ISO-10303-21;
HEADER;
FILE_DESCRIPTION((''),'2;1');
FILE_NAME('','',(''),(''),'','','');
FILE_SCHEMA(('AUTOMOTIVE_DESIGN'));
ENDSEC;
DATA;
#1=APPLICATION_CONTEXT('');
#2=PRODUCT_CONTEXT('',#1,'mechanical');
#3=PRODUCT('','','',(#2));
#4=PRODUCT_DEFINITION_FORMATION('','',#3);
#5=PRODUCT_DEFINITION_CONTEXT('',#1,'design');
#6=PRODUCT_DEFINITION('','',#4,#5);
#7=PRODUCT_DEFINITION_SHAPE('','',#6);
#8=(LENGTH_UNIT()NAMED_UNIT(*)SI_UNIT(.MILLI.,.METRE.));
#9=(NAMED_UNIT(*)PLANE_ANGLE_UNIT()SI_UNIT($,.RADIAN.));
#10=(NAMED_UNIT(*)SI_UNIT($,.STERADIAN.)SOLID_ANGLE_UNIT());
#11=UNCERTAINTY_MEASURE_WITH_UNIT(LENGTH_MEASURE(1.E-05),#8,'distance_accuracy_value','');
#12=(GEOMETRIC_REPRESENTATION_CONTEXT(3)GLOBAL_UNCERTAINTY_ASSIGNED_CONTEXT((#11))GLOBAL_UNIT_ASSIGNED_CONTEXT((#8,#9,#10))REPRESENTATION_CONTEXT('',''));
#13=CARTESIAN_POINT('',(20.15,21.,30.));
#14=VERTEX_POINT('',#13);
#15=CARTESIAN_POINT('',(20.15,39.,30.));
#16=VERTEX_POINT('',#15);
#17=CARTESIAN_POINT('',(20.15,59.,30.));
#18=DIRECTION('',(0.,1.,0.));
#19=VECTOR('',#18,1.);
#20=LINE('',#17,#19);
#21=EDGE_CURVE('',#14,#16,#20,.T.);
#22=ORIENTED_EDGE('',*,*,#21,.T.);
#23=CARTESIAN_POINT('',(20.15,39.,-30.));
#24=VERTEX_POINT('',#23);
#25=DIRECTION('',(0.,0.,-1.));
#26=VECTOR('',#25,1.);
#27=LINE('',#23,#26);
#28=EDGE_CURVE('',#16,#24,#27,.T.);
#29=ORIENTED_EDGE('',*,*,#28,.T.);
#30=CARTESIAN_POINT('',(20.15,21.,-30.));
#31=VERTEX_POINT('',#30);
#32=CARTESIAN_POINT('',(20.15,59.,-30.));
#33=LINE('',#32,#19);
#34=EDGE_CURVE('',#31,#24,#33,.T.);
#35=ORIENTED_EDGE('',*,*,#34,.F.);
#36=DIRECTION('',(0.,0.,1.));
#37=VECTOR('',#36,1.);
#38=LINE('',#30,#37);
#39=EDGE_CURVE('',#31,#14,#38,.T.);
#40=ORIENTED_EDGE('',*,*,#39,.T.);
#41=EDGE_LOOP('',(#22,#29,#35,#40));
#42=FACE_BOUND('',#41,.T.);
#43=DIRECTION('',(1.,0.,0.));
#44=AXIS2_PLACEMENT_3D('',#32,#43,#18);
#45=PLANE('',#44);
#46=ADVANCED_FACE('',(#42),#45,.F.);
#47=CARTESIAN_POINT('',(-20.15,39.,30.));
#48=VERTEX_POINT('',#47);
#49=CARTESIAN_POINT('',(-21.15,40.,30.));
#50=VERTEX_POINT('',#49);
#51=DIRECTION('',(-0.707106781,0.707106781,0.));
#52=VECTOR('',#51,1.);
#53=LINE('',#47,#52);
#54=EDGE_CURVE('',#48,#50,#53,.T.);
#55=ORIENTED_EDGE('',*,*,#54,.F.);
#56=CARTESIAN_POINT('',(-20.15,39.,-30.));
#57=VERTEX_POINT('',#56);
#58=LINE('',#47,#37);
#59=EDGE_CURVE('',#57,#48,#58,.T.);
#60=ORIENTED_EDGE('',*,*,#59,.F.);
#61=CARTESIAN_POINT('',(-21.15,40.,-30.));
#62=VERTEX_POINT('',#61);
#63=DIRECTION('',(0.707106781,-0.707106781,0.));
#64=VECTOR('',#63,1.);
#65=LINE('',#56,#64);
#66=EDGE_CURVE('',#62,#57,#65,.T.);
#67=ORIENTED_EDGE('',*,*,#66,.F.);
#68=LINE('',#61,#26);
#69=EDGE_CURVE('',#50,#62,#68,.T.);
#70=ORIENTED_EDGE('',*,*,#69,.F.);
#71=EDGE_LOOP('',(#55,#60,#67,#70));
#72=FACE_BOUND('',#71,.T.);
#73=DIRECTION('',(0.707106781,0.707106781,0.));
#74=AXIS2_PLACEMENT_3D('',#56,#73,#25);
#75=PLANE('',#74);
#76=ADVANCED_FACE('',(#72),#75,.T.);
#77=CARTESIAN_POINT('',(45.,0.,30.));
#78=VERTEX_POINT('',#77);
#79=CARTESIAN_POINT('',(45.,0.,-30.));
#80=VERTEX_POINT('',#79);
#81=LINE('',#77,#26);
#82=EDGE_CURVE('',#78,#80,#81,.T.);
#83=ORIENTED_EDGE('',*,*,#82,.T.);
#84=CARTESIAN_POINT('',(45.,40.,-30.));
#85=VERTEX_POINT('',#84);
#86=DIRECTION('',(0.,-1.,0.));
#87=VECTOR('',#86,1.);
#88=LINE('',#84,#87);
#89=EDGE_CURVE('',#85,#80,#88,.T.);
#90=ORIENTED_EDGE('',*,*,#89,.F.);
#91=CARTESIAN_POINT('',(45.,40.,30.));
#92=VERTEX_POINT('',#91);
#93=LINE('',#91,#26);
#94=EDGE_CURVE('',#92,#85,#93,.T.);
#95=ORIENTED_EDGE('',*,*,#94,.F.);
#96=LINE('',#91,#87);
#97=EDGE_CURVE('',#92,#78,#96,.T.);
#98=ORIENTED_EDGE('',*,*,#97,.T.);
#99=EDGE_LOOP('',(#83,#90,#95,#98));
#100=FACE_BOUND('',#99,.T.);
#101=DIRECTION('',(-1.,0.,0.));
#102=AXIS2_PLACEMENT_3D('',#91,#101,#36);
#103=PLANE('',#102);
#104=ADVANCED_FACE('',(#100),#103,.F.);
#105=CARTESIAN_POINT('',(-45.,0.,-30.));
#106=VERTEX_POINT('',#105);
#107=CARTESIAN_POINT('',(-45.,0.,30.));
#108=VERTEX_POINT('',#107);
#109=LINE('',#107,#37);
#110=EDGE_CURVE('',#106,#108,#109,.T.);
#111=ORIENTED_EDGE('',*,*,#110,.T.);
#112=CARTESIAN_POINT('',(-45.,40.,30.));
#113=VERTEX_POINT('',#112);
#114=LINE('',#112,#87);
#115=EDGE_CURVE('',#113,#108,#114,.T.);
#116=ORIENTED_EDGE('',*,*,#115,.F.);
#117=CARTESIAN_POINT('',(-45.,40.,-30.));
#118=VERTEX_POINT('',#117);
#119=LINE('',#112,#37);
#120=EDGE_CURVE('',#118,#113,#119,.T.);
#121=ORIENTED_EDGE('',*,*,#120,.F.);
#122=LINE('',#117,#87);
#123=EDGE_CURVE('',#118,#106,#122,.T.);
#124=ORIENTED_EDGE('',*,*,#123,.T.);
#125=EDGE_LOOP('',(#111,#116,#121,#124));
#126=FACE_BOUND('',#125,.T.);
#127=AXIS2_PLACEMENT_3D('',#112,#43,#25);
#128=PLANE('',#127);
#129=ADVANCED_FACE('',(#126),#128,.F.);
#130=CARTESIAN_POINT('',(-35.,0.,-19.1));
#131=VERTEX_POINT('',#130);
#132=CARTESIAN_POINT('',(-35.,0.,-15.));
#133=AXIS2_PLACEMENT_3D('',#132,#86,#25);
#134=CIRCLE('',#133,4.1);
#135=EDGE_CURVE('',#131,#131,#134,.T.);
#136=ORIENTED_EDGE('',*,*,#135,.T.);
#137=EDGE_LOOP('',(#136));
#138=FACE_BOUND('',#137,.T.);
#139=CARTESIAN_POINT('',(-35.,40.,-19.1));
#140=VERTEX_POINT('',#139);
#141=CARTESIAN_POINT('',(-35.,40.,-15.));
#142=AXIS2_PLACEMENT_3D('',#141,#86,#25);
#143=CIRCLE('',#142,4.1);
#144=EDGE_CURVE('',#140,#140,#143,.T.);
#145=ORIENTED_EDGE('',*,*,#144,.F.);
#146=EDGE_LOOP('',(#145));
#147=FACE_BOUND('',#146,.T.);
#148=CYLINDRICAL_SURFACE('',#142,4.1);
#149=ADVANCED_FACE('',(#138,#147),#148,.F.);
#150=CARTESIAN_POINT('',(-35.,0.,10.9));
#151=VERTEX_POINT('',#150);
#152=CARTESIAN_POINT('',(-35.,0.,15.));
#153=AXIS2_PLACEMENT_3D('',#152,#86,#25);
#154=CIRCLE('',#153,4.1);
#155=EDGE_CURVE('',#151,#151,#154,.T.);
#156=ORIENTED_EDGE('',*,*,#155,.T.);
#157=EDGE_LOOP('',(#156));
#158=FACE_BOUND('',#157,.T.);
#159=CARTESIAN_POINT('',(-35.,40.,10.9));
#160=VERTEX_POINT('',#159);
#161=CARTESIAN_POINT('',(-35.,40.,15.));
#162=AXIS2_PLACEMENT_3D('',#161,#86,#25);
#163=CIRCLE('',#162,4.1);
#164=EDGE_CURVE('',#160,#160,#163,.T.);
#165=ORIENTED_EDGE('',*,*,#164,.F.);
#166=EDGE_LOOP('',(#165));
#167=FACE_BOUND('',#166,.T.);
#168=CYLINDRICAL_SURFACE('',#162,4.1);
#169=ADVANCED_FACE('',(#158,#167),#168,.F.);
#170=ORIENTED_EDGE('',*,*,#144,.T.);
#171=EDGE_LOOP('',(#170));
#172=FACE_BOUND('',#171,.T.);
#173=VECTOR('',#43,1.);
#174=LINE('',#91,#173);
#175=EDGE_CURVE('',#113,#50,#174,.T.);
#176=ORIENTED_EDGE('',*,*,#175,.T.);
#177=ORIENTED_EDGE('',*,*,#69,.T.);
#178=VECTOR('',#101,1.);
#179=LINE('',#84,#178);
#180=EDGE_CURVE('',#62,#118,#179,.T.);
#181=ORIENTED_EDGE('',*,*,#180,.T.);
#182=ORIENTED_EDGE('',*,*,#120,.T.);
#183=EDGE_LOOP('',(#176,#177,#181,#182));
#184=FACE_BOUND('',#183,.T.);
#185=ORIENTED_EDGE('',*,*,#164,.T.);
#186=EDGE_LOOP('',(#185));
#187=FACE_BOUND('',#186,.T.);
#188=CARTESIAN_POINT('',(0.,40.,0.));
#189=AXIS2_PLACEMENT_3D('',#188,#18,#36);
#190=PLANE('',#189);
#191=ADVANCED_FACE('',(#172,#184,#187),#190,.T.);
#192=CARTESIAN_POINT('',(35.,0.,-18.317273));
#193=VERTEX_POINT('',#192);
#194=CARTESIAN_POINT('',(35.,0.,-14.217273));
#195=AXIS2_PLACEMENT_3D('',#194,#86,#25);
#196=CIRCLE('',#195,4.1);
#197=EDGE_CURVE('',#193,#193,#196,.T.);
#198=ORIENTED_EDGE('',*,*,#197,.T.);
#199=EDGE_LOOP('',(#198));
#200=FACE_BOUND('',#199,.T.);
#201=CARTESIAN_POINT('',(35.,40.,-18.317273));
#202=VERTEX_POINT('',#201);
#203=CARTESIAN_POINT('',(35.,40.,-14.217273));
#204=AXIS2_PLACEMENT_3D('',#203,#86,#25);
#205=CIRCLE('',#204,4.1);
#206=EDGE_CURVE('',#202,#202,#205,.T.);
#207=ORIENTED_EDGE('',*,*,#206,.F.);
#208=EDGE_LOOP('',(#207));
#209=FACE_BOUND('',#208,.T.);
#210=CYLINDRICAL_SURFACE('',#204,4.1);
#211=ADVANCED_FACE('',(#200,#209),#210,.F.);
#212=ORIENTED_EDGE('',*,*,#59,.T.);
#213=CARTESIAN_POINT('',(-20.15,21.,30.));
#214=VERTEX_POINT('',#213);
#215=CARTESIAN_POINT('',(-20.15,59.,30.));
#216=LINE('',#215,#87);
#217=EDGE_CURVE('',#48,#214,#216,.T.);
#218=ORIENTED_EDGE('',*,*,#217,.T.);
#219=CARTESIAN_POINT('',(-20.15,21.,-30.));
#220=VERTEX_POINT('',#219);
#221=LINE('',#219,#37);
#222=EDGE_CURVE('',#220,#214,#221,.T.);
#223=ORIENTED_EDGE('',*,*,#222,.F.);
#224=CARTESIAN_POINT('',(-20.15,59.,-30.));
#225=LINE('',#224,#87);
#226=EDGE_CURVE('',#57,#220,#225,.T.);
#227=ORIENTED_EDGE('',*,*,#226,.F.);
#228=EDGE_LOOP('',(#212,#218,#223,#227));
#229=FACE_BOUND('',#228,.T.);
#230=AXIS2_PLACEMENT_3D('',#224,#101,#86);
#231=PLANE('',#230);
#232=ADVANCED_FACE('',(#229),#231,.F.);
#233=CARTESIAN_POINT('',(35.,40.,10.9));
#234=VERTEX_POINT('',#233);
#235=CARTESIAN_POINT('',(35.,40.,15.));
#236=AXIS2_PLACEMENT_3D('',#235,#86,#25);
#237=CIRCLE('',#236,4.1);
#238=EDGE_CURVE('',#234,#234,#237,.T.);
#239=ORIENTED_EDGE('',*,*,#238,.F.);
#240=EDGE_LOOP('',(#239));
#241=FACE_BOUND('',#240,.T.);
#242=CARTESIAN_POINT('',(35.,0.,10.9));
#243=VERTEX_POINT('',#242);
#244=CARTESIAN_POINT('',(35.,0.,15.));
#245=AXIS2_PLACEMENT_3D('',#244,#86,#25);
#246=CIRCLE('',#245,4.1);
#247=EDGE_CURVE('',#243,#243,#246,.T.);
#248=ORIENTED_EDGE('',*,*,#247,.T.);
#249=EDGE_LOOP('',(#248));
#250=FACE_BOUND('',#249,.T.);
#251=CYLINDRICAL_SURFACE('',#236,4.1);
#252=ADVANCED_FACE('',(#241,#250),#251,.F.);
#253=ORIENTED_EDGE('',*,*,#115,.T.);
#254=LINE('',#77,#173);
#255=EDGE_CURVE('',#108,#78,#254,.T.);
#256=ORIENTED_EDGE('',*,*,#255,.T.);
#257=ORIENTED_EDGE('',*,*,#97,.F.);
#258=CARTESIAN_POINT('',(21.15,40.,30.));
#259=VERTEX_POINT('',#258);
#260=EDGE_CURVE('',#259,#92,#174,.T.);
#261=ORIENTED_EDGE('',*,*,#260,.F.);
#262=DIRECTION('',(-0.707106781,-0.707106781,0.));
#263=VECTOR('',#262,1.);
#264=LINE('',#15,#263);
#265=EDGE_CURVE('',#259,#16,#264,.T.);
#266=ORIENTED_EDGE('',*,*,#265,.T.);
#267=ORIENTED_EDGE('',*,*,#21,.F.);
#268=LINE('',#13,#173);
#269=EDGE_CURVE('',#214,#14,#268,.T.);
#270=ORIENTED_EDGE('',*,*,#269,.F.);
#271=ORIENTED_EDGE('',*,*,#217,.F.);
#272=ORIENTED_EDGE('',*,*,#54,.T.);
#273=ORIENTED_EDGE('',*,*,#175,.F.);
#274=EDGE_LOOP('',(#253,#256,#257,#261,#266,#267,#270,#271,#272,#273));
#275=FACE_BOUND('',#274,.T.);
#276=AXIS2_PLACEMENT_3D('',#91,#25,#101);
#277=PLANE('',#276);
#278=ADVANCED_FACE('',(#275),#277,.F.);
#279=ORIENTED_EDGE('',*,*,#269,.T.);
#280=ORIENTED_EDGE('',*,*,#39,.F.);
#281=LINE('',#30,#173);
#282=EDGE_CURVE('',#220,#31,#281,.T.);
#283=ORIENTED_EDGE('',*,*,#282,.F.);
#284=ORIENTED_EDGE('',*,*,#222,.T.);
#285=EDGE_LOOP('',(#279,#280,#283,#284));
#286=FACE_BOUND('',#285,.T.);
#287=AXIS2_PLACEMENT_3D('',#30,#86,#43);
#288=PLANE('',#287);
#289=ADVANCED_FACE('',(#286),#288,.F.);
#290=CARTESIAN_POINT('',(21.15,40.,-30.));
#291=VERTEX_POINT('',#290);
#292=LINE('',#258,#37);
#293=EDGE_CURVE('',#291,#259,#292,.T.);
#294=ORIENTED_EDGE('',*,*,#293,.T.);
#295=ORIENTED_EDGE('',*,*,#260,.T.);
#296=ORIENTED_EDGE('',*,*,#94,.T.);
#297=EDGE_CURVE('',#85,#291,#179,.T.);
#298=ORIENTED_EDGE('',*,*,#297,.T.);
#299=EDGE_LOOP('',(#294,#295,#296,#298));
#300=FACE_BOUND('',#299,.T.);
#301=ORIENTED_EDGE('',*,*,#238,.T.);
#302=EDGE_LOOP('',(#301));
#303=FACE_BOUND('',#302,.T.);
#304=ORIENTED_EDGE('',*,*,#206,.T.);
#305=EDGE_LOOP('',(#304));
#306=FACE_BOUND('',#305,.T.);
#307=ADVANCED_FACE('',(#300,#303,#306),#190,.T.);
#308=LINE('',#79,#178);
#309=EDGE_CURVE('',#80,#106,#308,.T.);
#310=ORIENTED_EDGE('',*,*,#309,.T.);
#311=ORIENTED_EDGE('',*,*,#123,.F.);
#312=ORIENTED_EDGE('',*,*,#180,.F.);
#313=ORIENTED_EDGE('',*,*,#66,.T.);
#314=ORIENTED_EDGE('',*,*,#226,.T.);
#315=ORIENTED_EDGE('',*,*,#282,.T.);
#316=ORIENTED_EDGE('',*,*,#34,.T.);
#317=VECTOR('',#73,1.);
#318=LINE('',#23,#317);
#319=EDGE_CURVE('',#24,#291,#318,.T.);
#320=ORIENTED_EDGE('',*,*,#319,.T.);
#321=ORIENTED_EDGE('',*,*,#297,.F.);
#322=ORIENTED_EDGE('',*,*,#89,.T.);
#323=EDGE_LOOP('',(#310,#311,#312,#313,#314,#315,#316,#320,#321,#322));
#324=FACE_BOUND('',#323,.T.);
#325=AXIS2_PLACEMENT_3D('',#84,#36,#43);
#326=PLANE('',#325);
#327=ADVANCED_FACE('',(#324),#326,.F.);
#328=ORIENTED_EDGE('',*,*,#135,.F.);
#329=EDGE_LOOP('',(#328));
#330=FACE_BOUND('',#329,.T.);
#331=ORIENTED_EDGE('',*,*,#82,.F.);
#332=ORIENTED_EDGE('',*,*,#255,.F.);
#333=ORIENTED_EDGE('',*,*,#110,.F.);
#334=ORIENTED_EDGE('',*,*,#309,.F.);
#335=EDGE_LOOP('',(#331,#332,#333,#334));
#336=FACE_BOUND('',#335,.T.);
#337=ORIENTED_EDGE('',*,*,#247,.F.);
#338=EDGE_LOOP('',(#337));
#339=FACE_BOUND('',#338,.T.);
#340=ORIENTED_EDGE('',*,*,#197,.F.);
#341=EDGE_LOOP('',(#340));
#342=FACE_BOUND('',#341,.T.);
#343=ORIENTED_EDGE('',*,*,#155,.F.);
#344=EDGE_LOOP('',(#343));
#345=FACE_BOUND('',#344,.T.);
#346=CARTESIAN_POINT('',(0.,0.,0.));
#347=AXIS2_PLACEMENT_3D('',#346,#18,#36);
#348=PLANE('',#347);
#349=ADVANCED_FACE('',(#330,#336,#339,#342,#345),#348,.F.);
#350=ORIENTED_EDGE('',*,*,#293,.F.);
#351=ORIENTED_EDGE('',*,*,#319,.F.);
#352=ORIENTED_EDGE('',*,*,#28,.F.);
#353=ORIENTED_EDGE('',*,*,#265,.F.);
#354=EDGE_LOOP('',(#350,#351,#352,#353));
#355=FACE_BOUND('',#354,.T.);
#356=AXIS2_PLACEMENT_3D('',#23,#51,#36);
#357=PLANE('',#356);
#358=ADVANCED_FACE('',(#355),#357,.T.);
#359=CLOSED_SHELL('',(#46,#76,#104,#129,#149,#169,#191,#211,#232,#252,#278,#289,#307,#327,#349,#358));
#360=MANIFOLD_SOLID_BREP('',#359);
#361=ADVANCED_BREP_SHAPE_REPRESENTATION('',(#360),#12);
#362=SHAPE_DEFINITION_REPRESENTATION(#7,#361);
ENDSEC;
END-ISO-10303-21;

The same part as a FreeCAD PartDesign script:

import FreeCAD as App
import Part
import Sketcher
from FreeCAD import Vector
Q = App.Units.Quantity


def edges_at(feature, points):
    """Names of the edges that pass closest to the given points."""
    edges = feature.Shape.Edges
    near = lambda p: min(range(len(edges)), key=lambda i: edges[i].distToShape(Part.Vertex(*p))[0])
    return sorted({f"Edge{near(p) + 1}" for p in points})

doc = App.newDocument("Part")
body = doc.addObject("PartDesign::Body", "Body")

# Sketch on XZ plane
sketch1 = doc.addObject("Sketcher::SketchObject", "Sketch")
body.addObject(sketch1)
sketch1.AttachmentSupport = (doc.XZ_Plane, [""])
sketch1.MapMode = "FlatFace"
sketch1.addGeometry([
    Part.LineSegment(Vector(-45, -30, 0), Vector(-45, 30, 0)),
    Part.LineSegment(Vector(-45, 30, 0), Vector(45, 30, 0)),
    Part.LineSegment(Vector(45, 30, 0), Vector(45, -30, 0)),
    Part.LineSegment(Vector(45, -30, 0), Vector(-45, -30, 0)),
], False)
sketch1.addConstraint([
    Sketcher.Constraint("Coincident", 0, 2, 1, 1),
    Sketcher.Constraint("Coincident", 1, 2, 2, 1),
    Sketcher.Constraint("Coincident", 2, 2, 3, 1),
    Sketcher.Constraint("Coincident", 3, 2, 0, 1),
    Sketcher.Constraint("Vertical", 0),
    Sketcher.Constraint("Horizontal", 1),
    Sketcher.Constraint("Vertical", 2),
    Sketcher.Constraint("Horizontal", 3),
    Sketcher.Constraint("Symmetric", 0, 2, 2, 2, -1, 1),
    Sketcher.Constraint("DistanceX", 1, 1, 1, 2, Q("90 mm")),
    Sketcher.Constraint("DistanceY", 0, 1, 0, 2, Q("60 mm")),
])
pad1 = doc.addObject("PartDesign::Pad", "Pad")
body.addObject(pad1)
pad1.Profile = sketch1
pad1.Length = 40
pad1.Reversed = True

# Sketch on XY plane
sketch2 = doc.addObject("Sketcher::SketchObject", "Sketch001")
body.addObject(sketch2)
sketch2.AttachmentSupport = (doc.XY_Plane, [""])
sketch2.MapMode = "FlatFace"
sketch2.AttachmentOffset = App.Placement(Vector(0, 0, 30), App.Rotation())
sketch2.addGeometry([
    Part.LineSegment(Vector(-20, 59, 0), Vector(-20, 21, 0)),
    Part.LineSegment(Vector(-20, 21, 0), Vector(20, 21, 0)),
    Part.LineSegment(Vector(20, 21, 0), Vector(20, 59, 0)),
    Part.LineSegment(Vector(20, 59, 0), Vector(-20, 59, 0)),
], False)
sketch2.addConstraint([
    Sketcher.Constraint("Coincident", 0, 2, 1, 1),
    Sketcher.Constraint("Coincident", 1, 2, 2, 1),
    Sketcher.Constraint("Coincident", 2, 2, 3, 1),
    Sketcher.Constraint("Coincident", 3, 2, 0, 1),
    Sketcher.Constraint("Vertical", 0),
    Sketcher.Constraint("Horizontal", 1),
    Sketcher.Constraint("Vertical", 2),
    Sketcher.Constraint("Horizontal", 3),
    Sketcher.Constraint("DistanceY", 0, 2, 0, 1, Q("38 mm")),
    Sketcher.Constraint("DistanceX", 1, 1, 1, 2, Q("40.3 mm")),
    Sketcher.Constraint("DistanceY", -1, 1, 0, 2, Q("21 mm")),
    Sketcher.Constraint("DistanceX", 0, 2, -1, 1, Q("20.15 mm")),
])
pocket1 = doc.addObject("PartDesign::Pocket", "Pocket")
body.addObject(pocket1)
pocket1.Profile = sketch2
pocket1.Type = "ThroughAll"

# Sketch on XZ plane
sketch3 = doc.addObject("Sketcher::SketchObject", "Sketch002")
body.addObject(sketch3)
sketch3.AttachmentSupport = (doc.XZ_Plane, [""])
sketch3.MapMode = "FlatFace"
sketch3.addGeometry([
    Part.Circle(Vector(-35, 15, 0), Vector(0, 0, 1), 4.1),
    Part.Circle(Vector(-35, -15, 0), Vector(0, 0, 1), 4.1),
    Part.Circle(Vector(35, -14.2, 0), Vector(0, 0, 1), 4.1),
    Part.Circle(Vector(35, 15, 0), Vector(0, 0, 1), 4.1),
], False)
sketch3.addConstraint([
    Sketcher.Constraint("Equal", 0, 1),
    Sketcher.Constraint("Equal", 1, 2),
    Sketcher.Constraint("Equal", 2, 3),
    Sketcher.Constraint("Symmetric", 1, 3, 3, 3, -1, 1),
    Sketcher.Constraint("Symmetric", 0, 3, 3, 3, -2),
    Sketcher.Constraint("Vertical", 2, 3, 3, 3),
    Sketcher.Constraint("Diameter", 0, Q("8.2 mm")),
    Sketcher.Constraint("DistanceX", 0, 3, -1, 1, Q("35 mm")),
    Sketcher.Constraint("DistanceY", -1, 1, 0, 3, Q("15 mm")),
    Sketcher.Constraint("DistanceY", 2, 3, -1, 1, Q("14.217273 mm")),
])
pocket2 = doc.addObject("PartDesign::Pocket", "Pocket001")
body.addObject(pocket2)
pocket2.Profile = sketch3
pocket2.Type = "ThroughAll"
doc.recompute()

chamfer = doc.addObject("PartDesign::Chamfer", "Chamfer")
body.addObject(chamfer)
chamfer.Base = (pocket2, edges_at(pocket2, [(20.15, 40, 0), (-20.15, 40, 0)]))
chamfer.Size = 1

doc.recompute()
